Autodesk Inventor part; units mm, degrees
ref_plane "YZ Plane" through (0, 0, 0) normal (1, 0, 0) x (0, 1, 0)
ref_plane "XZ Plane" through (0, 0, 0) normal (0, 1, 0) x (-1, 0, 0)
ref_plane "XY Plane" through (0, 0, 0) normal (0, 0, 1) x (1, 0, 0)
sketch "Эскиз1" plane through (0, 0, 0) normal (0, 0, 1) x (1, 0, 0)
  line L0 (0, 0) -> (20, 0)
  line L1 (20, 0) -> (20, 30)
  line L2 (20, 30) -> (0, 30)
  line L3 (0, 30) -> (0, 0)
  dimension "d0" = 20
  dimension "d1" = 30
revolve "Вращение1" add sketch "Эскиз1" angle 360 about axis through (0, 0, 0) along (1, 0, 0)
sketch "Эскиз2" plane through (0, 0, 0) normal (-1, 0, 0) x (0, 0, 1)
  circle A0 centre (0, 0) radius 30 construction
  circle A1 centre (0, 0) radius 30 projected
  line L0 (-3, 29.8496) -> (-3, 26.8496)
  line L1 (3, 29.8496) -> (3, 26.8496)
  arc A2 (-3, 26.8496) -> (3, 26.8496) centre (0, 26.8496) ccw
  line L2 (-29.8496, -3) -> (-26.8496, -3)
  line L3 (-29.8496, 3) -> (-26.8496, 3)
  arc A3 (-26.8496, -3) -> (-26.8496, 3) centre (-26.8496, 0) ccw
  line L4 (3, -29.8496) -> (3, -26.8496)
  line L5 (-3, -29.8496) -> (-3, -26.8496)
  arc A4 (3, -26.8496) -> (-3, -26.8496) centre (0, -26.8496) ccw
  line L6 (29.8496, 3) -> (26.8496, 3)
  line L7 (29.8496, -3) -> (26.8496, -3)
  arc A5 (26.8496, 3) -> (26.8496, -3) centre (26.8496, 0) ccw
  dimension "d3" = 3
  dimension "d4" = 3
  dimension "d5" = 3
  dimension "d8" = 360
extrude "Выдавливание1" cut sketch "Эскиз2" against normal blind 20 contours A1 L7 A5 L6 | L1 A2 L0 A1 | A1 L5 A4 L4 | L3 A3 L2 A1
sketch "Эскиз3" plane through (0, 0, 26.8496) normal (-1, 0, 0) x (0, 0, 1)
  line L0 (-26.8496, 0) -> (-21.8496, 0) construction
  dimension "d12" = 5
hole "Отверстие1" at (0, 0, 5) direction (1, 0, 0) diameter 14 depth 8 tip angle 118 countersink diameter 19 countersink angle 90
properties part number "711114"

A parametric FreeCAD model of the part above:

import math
import FreeCAD as App
import Part
import Sketcher
from FreeCAD import Vector
Q = App.Units.Quantity


def add_polygon(sketch, points):
    """Adds a closed chain of lines whose ends are joined by coincident constraints."""
    first, n = sketch.GeometryCount, len(points)
    for a, b in zip(points, points[1:] + points[:1]):
        sketch.addGeometry(Part.LineSegment(App.Vector(*a, 0), App.Vector(*b, 0)), False)
    for i in range(n):
        sketch.addConstraint(Sketcher.Constraint("Coincident", first + i, 2, first + (i + 1) % n, 1))

doc = App.newDocument("Part")
body = doc.addObject("PartDesign::Body", "Body")

# Sketch on XY plane
sketch1 = body.newObject("Sketcher::SketchObject", "Sketch")
sketch1.AttachmentSupport = (doc.getObject("XY_Plane"), [""])
sketch1.MapMode = "FlatFace"
add_polygon(sketch1, [(0, 30), (0, 0), (20, 0), (20, 30)])  # lines 0-3
sketch1.addConstraint([
    Sketcher.Constraint("Vertical", 0),
    Sketcher.Constraint("Horizontal", 1),
    Sketcher.Constraint("Vertical", 2),
    Sketcher.Constraint("Horizontal", 3),
    Sketcher.Constraint("Coincident", 0, 2, -1, 1),
    Sketcher.Constraint("DistanceX", 1, 1, 1, 2, Q("20 mm")),
    Sketcher.Constraint("DistanceY", 0, 2, 0, 1, Q("30 mm")),
])
revolution = body.newObject("PartDesign::Revolution", "Revolution")
revolution.Profile = sketch1
revolution.ReferenceAxis = (sketch1, ["H_Axis"])
revolution.Angle = 360

# Sketch on YZ plane
sketch2 = body.newObject("Sketcher::SketchObject", "Sketch001")
sketch2.AttachmentSupport = (doc.getObject("YZ_Plane"), [""])
sketch2.MapMode = "FlatFace"
sketch2.addGeometry([
    Part.ArcOfCircle(Part.Circle(Vector(0, 0, 0), Vector(0, 0, 1), 30), math.radians(84.26), math.radians(95.74)),  # 0
    Part.LineSegment(Vector(3, 29.8, 0), Vector(3, 26.8, 0)),  # 1
    Part.ArcOfCircle(Part.Circle(Vector(0, 26.8, 0), Vector(0, 0, 1), 3), math.radians(180), math.radians(360)),  # 2
    Part.LineSegment(Vector(-3, 26.8, 0), Vector(-3, 29.8, 0)),  # 3
    Part.LineSegment(Vector(26.8, 3, 0), Vector(29.8, 3, 0)),  # 4
    Part.ArcOfCircle(Part.Circle(Vector(0, 0, 0), Vector(0, 0, 1), 30), math.radians(-5.74), math.radians(5.74)),  # 5
    Part.LineSegment(Vector(29.8, -3, 0), Vector(26.8, -3, 0)),  # 6
    Part.ArcOfCircle(Part.Circle(Vector(26.8, 0, 0), Vector(0, 0, 1), 3), math.radians(90), math.radians(270)),  # 7
    Part.ArcOfCircle(Part.Circle(Vector(0, 0, 0), Vector(0, 0, 1), 30), math.radians(174.26), math.radians(185.74)),  # 8
    Part.LineSegment(Vector(-29.8, 3, 0), Vector(-26.8, 3, 0)),  # 9
    Part.ArcOfCircle(Part.Circle(Vector(-26.8, 0, 0), Vector(0, 0, 1), 3), math.radians(-90), math.radians(90)),  # 10
    Part.LineSegment(Vector(-26.8, -3, 0), Vector(-29.8, -3, 0)),  # 11
    Part.LineSegment(Vector(3, -26.8, 0), Vector(3, -29.8, 0)),  # 12
    Part.ArcOfCircle(Part.Circle(Vector(0, 0, 0), Vector(0, 0, 1), 30), math.radians(-95.74), math.radians(-84.26)),  # 13
    Part.LineSegment(Vector(-3, -29.8, 0), Vector(-3, -26.8, 0)),  # 14
    Part.ArcOfCircle(Part.Circle(Vector(0, -26.8, 0), Vector(0, 0, 1), 3), math.radians(0), math.radians(180)),  # 15
], False)
sketch2.addConstraint([
    Sketcher.Constraint("Coincident", 0, 1, 1, 1),
    Sketcher.Constraint("Tangent", 1, 2, 2, 2),
    Sketcher.Constraint("Tangent", 2, 1, 3, 1),
    Sketcher.Constraint("Coincident", 3, 2, 0, 2),
    Sketcher.Constraint("Coincident", 4, 2, 5, 2),
    Sketcher.Constraint("Coincident", 5, 1, 6, 1),
    Sketcher.Constraint("Tangent", 6, 2, 7, 2),
    Sketcher.Constraint("Tangent", 7, 1, 4, 1),
    Sketcher.Constraint("Coincident", 8, 1, 9, 1),
    Sketcher.Constraint("Tangent", 9, 2, 10, 2),
    Sketcher.Constraint("Tangent", 10, 1, 11, 1),
    Sketcher.Constraint("Coincident", 11, 2, 8, 2),
    Sketcher.Constraint("Coincident", 12, 2, 13, 2),
    Sketcher.Constraint("Coincident", 13, 1, 14, 1),
    Sketcher.Constraint("Tangent", 14, 2, 15, 2),
    Sketcher.Constraint("Tangent", 15, 1, 12, 1),
    Sketcher.Constraint("Vertical", 1),
    Sketcher.Constraint("Vertical", 3),
    Sketcher.Constraint("Horizontal", 4),
    Sketcher.Constraint("Horizontal", 6),
    Sketcher.Constraint("Horizontal", 9),
    Sketcher.Constraint("Horizontal", 11),
    Sketcher.Constraint("Vertical", 12),
    Sketcher.Constraint("Vertical", 14),
    Sketcher.Constraint("Coincident", 0, 3, -1, 1),
    Sketcher.Constraint("Coincident", 5, 3, -1, 1),
    Sketcher.Constraint("Coincident", 8, 3, -1, 1),
    Sketcher.Constraint("Coincident", 13, 3, -1, 1),
    Sketcher.Constraint("Equal", 0, 5),
    Sketcher.Constraint("Equal", 2, 7),
    Sketcher.Constraint("Equal", 5, 8),
    Sketcher.Constraint("Equal", 7, 10),
    Sketcher.Constraint("Equal", 8, 13),
    Sketcher.Constraint("Equal", 10, 15),
    Sketcher.Constraint("Symmetric", 7, 3, 10, 3, -1, 1),
    Sketcher.Constraint("Symmetric", 2, 3, 15, 3, -1, 1),
    Sketcher.Constraint("PointOnObject", 2, 3, -2),
    Sketcher.Constraint("PointOnObject", 7, 3, -1),
    Sketcher.Constraint("Equal", 11, 1),
    Sketcher.Constraint("Radius", 2, Q("3 mm")),
    Sketcher.Constraint("DistanceX", 4, 1, 4, 2, Q("3 mm")),
    Sketcher.Constraint("Radius", 0, Q("30 mm")),
])
pocket1 = body.newObject("PartDesign::Pocket", "Pocket")
pocket1.Profile = sketch2
pocket1.Length = 20
pocket1.Reversed = True

# Sketch on YZ plane
sketch3 = body.newObject("Sketcher::SketchObject", "Sketch002")
sketch3.AttachmentSupport = (doc.getObject("YZ_Plane"), [""])
sketch3.MapMode = "FlatFace"
sketch3.addGeometry(Part.Circle(Vector(0, 5, 0), Vector(0, 0, 1), 7), False)
sketch3.addConstraint([
    Sketcher.Constraint("PointOnObject", 0, 3, -2),
    Sketcher.Constraint("Diameter", 0, Q("14 mm")),
    Sketcher.Constraint("DistanceY", -1, 1, 0, 3, Q("5 mm")),
])
doc.recompute()
hole = body.newObject("PartDesign::Hole", "Hole")
hole.Profile = sketch3
hole.ThreadType = "None"
hole.Diameter = 14
hole.DepthType = "Dimension"
hole.Depth = 8
hole.DrillPoint = "Angled"
hole.DrillPointAngle = 118
hole.HoleCutType = "Countersink"
hole.HoleCutDiameter = 19
hole.HoleCutCountersinkAngle = 90
hole.Reversed = True

doc.recompute()
